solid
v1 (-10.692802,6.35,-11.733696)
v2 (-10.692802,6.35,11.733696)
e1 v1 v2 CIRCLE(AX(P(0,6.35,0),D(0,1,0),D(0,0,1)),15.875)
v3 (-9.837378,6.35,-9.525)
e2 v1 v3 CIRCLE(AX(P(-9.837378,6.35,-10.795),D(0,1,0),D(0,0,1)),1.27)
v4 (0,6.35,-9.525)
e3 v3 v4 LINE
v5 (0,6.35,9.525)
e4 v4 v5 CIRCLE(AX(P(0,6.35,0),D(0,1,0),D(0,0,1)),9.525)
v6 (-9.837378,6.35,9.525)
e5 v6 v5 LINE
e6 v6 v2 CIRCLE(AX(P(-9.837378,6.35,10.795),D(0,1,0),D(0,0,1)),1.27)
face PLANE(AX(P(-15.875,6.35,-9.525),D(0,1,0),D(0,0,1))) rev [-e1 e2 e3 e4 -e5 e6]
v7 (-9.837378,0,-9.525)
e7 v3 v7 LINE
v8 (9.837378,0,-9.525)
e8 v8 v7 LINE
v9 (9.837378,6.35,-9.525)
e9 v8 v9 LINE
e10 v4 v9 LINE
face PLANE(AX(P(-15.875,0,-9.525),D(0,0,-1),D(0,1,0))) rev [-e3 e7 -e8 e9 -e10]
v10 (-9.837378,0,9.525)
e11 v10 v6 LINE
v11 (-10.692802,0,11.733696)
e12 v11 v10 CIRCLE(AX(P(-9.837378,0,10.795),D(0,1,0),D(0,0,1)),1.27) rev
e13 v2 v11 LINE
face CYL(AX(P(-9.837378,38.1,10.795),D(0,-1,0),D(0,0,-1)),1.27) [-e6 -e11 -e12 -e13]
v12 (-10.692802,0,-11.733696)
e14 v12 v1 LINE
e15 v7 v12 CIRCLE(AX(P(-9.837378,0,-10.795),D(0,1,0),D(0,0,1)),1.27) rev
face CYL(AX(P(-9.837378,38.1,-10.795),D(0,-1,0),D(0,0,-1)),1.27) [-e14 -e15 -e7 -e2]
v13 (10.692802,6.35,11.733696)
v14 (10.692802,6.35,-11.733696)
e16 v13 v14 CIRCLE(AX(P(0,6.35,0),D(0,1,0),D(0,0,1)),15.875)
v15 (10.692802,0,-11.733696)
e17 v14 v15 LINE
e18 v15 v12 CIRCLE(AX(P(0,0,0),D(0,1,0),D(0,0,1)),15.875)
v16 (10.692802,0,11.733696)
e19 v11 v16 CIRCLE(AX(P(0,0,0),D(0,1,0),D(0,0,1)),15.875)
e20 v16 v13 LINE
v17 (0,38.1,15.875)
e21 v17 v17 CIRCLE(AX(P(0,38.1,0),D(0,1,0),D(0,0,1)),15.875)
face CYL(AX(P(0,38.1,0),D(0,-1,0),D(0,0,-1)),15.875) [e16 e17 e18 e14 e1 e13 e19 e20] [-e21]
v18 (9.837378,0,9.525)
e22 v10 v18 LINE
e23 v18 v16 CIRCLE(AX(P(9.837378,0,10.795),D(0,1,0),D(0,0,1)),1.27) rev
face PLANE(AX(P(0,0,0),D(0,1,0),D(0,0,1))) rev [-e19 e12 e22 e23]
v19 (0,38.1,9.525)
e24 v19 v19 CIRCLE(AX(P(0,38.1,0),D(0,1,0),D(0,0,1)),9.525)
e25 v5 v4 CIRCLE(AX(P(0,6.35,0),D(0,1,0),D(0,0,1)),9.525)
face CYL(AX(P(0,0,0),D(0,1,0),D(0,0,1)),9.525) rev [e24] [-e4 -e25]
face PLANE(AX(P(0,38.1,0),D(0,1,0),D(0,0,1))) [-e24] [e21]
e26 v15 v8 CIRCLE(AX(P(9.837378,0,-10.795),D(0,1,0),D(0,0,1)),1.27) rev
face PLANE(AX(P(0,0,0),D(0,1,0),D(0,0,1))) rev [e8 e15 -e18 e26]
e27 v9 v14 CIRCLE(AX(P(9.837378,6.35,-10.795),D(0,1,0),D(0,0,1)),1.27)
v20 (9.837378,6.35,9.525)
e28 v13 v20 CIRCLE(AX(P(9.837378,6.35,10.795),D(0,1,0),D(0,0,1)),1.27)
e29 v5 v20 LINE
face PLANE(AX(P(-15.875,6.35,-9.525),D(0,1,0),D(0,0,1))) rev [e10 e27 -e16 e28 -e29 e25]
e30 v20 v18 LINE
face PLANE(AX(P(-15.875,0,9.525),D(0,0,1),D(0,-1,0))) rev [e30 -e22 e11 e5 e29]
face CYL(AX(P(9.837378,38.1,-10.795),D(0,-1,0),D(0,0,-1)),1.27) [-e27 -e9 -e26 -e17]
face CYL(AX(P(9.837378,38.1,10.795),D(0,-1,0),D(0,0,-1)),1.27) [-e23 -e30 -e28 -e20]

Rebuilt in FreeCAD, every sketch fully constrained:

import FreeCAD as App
import Part
import Sketcher
from FreeCAD import Vector
Q = App.Units.Quantity


def edges_at(feature, points):
    """Names of the edges that pass closest to the given points."""
    edges = feature.Shape.Edges
    near = lambda p: min(range(len(edges)), key=lambda i: edges[i].distToShape(Part.Vertex(*p))[0])
    return sorted({f"Edge{near(p) + 1}" for p in points})


def add_polygon(sketch, points):
    """Adds a closed chain of lines whose ends are joined by coincident constraints."""
    first, n = sketch.GeometryCount, len(points)
    for a, b in zip(points, points[1:] + points[:1]):
        sketch.addGeometry(Part.LineSegment(App.Vector(*a, 0), App.Vector(*b, 0)), False)
    for i in range(n):
        sketch.addConstraint(Sketcher.Constraint("Coincident", first + i, 2, first + (i + 1) % n, 1))

doc = App.newDocument("Part")
body = doc.addObject("PartDesign::Body", "Body")

# Sketch on XZ plane
sketch1 = doc.addObject("Sketcher::SketchObject", "Sketch")
body.addObject(sketch1)
sketch1.AttachmentSupport = (doc.XZ_Plane, [""])
sketch1.MapMode = "FlatFace"
sketch1.addGeometry(Part.Circle(Vector(0, 0, 0), Vector(0, 0, 1), 16), False)
sketch1.addConstraint([
    Sketcher.Constraint("Coincident", 0, 3, -1, 1),
    Sketcher.Constraint("Diameter", 0, Q("1.25 in")),
])
pad1 = doc.addObject("PartDesign::Pad", "Pad")
body.addObject(pad1)
pad1.Profile = sketch1
pad1.Length = Q("1.5 in")
pad1.Reversed = True

# Sketch on YZ plane
sketch2 = doc.addObject("Sketcher::SketchObject", "Sketch001")
body.addObject(sketch2)
sketch2.AttachmentSupport = (doc.YZ_Plane, [""])
sketch2.MapMode = "FlatFace"
add_polygon(sketch2, [(6, 10), (0, 10), (0, -10), (6, -10)])  # lines 0-3
sketch2.addConstraint([
    Sketcher.Constraint("Horizontal", 0),
    Sketcher.Constraint("Vertical", 1),
    Sketcher.Constraint("Horizontal", 2),
    Sketcher.Constraint("Vertical", 3),
    Sketcher.Constraint("Symmetric", 0, 2, 1, 2, -1, 1),
    Sketcher.Constraint("DistanceX", 0, 2, 0, 1, Q("0.25 in")),
    Sketcher.Constraint("DistanceY", 1, 2, 1, 1, Q("0.75 in")),
])
pocket1 = doc.addObject("PartDesign::Pocket", "Pocket")
body.addObject(pocket1)
pocket1.Profile = sketch2
pocket1.Type = "ThroughAll"
pocket1.Midplane = True

# Sketch on XZ plane
sketch3 = doc.addObject("Sketcher::SketchObject", "Sketch002")
body.addObject(sketch3)
sketch3.AttachmentSupport = (doc.XZ_Plane, [""])
sketch3.MapMode = "FlatFace"
sketch3.AttachmentOffset = App.Placement(Vector(0, 0, -1.5 * 25.4), App.Rotation())
sketch3.addGeometry(Part.Circle(Vector(0, 0, 0), Vector(0, 0, 1), 10), False)
sketch3.addConstraint([
    Sketcher.Constraint("Coincident", 0, 3, -1, 1),
    Sketcher.Constraint("Diameter", 0, Q("0.75 in")),
])
pocket2 = doc.addObject("PartDesign::Pocket", "Pocket001")
body.addObject(pocket2)
pocket2.Profile = sketch3
pocket2.Type = "ThroughAll"
pocket2.Reversed = True
doc.recompute()

fillet = doc.addObject("PartDesign::Fillet", "Fillet")
body.addObject(fillet)
fillet.Base = (pocket2, edges_at(pocket2, [
    (-12.7, 3.175, 9.525),
    (12.7, 3.175, 9.525),
    (12.7, 3.175, -9.525),
    (-12.7, 3.175, -9.525),
]))
fillet.Radius = Q("0.05 in")

doc.recompute()
